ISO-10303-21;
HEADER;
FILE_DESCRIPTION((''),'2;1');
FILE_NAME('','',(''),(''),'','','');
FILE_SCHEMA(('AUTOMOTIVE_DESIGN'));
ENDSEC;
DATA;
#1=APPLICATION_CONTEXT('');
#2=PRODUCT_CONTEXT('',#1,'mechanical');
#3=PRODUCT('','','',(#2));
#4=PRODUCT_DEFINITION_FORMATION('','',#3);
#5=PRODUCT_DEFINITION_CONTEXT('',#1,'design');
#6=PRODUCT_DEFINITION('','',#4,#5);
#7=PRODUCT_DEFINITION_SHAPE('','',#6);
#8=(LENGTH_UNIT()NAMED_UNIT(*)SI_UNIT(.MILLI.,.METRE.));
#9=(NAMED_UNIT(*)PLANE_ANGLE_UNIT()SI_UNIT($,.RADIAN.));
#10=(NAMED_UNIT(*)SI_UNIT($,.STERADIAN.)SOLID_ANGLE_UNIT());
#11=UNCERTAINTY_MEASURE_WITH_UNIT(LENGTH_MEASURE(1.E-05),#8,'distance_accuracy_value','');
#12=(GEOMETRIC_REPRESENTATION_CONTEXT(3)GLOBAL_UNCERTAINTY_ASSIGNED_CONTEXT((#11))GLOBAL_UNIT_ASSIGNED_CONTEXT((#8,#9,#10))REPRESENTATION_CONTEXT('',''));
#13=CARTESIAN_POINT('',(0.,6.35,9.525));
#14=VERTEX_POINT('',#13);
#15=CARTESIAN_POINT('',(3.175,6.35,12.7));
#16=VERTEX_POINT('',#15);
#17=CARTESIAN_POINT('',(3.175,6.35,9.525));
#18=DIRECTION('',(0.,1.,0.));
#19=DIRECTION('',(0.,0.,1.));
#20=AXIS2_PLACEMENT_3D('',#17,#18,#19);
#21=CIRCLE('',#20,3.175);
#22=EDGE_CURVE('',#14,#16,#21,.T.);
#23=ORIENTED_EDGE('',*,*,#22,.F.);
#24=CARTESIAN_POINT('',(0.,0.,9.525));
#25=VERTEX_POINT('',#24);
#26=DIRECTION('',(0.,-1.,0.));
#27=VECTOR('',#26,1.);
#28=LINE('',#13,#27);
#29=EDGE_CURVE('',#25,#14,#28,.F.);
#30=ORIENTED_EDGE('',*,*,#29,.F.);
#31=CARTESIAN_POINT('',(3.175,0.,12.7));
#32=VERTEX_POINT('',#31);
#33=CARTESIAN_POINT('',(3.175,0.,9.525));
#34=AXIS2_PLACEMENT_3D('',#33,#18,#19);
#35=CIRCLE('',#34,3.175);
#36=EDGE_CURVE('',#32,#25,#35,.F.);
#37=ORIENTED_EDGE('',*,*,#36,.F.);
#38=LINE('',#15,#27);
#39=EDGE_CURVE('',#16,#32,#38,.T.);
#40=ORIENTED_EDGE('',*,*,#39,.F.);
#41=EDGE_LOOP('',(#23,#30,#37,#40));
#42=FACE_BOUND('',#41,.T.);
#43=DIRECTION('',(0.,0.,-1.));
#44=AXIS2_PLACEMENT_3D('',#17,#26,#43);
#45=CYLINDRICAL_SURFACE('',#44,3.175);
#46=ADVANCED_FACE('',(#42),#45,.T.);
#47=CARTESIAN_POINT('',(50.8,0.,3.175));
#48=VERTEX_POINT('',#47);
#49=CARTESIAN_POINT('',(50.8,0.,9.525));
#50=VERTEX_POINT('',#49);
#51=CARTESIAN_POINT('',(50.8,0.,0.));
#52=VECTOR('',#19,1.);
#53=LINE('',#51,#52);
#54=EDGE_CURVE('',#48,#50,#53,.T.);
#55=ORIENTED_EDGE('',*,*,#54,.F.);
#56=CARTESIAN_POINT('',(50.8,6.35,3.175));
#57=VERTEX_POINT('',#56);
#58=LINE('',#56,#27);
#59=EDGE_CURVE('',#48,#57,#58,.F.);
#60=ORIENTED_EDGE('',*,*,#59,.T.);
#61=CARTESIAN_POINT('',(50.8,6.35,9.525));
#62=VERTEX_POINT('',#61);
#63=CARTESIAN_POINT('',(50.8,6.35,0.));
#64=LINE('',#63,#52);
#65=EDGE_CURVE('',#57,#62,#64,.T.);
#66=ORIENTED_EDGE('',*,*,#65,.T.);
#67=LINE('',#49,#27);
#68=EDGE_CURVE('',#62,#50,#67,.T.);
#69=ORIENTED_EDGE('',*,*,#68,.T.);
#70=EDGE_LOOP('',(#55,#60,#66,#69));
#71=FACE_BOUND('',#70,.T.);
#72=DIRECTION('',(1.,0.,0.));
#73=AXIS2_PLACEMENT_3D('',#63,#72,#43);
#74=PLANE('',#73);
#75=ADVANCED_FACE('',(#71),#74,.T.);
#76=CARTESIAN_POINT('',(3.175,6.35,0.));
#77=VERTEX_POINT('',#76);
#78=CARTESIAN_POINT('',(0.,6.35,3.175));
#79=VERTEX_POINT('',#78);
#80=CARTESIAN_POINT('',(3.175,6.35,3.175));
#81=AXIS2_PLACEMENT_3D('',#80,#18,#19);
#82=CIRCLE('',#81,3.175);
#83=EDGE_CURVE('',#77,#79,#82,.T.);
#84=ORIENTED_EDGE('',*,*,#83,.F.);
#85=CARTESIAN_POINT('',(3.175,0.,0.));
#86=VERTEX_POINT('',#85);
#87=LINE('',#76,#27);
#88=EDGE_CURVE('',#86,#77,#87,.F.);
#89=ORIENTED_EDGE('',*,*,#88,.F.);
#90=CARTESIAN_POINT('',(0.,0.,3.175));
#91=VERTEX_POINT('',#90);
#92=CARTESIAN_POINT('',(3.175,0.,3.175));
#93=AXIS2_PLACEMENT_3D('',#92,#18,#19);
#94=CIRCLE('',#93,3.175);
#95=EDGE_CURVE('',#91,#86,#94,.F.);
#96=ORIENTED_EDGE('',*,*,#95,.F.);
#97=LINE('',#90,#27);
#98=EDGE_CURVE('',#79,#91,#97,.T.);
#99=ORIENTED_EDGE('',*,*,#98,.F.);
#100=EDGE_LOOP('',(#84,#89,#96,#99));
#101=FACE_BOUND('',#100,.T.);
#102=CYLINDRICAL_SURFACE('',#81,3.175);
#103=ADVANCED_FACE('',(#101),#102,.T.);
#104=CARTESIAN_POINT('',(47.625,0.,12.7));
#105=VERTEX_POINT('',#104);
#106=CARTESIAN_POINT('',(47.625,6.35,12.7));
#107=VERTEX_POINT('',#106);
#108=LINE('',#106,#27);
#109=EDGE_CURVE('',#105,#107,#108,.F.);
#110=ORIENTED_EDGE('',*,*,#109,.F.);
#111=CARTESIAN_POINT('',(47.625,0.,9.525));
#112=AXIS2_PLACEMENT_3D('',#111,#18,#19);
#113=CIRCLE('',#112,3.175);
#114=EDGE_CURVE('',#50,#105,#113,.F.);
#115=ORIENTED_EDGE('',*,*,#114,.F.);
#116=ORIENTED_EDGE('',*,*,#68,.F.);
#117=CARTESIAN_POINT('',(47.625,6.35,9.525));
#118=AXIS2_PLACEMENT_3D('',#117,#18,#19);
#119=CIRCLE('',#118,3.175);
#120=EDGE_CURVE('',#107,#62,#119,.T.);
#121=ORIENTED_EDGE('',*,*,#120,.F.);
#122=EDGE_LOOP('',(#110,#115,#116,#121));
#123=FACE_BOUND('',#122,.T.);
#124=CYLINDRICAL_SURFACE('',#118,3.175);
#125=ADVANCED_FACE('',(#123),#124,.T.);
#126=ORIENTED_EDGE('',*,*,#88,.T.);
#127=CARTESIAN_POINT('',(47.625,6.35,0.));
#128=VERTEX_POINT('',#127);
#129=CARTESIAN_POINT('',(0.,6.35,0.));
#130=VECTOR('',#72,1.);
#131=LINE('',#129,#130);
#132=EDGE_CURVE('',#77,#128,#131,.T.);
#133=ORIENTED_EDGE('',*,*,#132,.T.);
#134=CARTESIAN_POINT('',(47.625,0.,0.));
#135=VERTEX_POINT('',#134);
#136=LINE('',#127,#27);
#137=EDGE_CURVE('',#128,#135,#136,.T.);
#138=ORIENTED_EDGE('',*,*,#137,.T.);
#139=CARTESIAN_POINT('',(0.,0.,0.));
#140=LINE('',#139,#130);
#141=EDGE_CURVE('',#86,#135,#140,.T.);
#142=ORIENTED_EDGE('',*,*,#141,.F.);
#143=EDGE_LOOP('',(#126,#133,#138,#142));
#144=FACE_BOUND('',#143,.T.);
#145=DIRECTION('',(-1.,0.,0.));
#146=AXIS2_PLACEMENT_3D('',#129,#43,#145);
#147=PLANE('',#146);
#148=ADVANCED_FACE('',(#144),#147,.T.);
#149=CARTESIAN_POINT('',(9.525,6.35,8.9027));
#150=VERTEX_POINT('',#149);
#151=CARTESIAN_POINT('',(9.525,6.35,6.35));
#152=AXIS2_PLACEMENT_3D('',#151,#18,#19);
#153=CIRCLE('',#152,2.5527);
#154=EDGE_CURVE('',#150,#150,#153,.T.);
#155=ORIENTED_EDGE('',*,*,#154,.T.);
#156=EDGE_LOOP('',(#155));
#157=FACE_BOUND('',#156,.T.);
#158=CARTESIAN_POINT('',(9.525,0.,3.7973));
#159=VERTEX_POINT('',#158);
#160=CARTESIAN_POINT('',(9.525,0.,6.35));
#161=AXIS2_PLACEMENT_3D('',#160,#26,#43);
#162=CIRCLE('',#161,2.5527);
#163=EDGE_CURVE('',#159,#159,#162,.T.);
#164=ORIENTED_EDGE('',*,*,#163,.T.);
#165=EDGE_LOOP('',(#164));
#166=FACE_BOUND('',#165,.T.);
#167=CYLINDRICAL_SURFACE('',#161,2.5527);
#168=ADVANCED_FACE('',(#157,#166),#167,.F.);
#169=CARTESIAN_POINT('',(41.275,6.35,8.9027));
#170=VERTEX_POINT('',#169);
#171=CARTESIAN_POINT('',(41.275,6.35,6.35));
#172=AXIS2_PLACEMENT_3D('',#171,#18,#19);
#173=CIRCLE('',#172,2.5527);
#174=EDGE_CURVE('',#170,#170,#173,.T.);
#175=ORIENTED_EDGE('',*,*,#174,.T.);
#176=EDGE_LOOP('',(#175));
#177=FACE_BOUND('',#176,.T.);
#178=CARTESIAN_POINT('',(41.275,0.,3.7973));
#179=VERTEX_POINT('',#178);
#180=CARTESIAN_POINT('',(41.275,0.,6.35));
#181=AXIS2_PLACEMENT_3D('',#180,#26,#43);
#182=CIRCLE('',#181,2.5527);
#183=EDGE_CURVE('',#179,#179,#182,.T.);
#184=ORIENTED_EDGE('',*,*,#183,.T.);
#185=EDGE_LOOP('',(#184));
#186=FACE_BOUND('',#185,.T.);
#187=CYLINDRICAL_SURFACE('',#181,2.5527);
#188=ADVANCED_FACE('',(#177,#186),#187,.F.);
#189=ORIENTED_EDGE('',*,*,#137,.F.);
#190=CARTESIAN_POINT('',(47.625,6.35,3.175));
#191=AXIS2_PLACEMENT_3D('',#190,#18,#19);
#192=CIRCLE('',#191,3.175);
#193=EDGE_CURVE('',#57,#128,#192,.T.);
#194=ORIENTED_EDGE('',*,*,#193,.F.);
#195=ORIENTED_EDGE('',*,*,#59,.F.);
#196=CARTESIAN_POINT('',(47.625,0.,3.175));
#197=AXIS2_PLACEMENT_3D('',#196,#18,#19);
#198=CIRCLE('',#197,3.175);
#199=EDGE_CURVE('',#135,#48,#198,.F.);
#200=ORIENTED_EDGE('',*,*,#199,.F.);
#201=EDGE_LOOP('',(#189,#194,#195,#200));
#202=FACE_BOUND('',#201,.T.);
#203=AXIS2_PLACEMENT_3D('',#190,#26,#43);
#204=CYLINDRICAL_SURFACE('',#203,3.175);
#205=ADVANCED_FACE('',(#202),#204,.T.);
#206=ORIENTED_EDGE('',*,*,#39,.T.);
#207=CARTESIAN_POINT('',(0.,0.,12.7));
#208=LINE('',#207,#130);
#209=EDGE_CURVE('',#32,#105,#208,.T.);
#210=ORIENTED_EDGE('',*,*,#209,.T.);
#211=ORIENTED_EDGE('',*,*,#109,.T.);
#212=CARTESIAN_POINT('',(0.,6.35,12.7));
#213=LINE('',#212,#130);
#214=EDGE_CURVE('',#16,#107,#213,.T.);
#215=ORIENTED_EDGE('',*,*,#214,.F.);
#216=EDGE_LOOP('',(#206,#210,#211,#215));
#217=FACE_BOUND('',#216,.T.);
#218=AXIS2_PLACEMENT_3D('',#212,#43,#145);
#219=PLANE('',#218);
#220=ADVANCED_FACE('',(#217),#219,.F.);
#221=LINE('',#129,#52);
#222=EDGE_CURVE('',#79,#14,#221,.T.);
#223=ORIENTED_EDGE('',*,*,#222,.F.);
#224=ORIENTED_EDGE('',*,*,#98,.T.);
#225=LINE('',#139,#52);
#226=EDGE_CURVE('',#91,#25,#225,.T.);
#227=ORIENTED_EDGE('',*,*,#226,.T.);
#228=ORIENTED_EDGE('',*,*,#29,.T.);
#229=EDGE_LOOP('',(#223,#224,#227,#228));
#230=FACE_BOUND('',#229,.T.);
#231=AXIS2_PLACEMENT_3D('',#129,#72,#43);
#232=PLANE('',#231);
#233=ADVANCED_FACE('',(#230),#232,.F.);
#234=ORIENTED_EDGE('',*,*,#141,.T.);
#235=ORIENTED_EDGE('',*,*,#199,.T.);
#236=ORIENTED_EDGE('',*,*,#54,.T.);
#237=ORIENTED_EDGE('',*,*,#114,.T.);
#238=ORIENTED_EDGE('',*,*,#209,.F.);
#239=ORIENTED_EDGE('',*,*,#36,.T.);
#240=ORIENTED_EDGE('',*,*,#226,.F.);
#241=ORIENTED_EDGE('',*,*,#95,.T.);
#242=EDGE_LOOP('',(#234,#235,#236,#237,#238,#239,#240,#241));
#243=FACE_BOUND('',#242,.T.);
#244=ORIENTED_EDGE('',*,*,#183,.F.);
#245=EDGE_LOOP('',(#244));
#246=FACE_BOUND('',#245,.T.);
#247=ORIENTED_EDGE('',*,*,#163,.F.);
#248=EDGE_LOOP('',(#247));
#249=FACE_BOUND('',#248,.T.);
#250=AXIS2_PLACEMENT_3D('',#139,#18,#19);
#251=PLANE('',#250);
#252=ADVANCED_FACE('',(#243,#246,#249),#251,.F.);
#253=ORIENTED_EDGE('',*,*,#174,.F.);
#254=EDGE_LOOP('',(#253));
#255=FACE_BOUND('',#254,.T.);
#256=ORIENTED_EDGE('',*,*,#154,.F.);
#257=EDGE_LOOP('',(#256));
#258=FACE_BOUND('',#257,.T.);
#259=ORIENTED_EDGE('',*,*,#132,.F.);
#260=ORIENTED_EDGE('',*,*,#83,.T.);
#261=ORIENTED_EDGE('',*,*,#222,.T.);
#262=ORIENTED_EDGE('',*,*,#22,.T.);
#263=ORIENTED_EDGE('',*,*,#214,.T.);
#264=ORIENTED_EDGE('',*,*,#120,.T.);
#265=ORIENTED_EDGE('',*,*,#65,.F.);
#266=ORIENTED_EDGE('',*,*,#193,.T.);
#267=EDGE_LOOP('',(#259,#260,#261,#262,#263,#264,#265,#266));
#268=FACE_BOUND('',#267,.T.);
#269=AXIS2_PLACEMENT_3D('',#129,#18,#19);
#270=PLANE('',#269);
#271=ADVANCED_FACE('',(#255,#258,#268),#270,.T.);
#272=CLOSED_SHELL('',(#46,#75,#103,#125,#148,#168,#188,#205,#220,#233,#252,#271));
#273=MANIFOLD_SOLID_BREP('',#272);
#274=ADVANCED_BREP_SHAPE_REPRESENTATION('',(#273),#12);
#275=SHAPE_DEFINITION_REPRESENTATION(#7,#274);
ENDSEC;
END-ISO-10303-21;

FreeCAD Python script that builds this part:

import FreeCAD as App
import Part
import Sketcher

V = App.Vector
Q = App.Units.Quantity


def edges_at(feature, points):
    """Names of the edges that pass closest to the given points."""
    edges = feature.Shape.Edges
    near = lambda p: min(range(len(edges)), key=lambda i: edges[i].distToShape(Part.Vertex(*p))[0])
    return sorted({f"Edge{near(p) + 1}" for p in points})

doc = App.newDocument("Part")
body = doc.addObject("PartDesign::Body", "Body")

sketch1 = body.newObject("Sketcher::SketchObject", "Sketch")
sketch1.AttachmentSupport = (doc.getObject("XZ_Plane"), [""])
sketch1.MapMode = "FlatFace"
sketch1.addGeometry(Part.LineSegment(V(0, 0, 0), V(0, 13, 0)), False)
sketch1.addGeometry(Part.LineSegment(V(0, 13, 0), V(51, 13, 0)), False)
sketch1.addGeometry(Part.LineSegment(V(51, 13, 0), V(51, 0, 0)), False)
sketch1.addGeometry(Part.LineSegment(V(51, 0, 0), V(0, 0, 0)), False)
sketch1.addConstraint(Sketcher.Constraint("Coincident", 0, 2, 1, 1))
sketch1.addConstraint(Sketcher.Constraint("Coincident", 1, 2, 2, 1))
sketch1.addConstraint(Sketcher.Constraint("Coincident", 2, 2, 3, 1))
sketch1.addConstraint(Sketcher.Constraint("Coincident", 3, 2, 0, 1))
sketch1.addConstraint(Sketcher.Constraint("Vertical", 0))
sketch1.addConstraint(Sketcher.Constraint("Horizontal", 1))
sketch1.addConstraint(Sketcher.Constraint("Vertical", 2))
sketch1.addConstraint(Sketcher.Constraint("Horizontal", 3))
sketch1.addConstraint(Sketcher.Constraint("Coincident", 3, 2, -1, 1))
sketch1.addConstraint(Sketcher.Constraint("DistanceX", 1, 1, 1, 2, Q("2 in")))
sketch1.addConstraint(Sketcher.Constraint("DistanceY", 0, 1, 0, 2, Q("0.5 in")))
pad1 = body.newObject("PartDesign::Pad", "Pad")
pad1.Profile = sketch1
pad1.Length = Q("0.25 in")
pad1.Reversed = True

sketch2 = body.newObject("Sketcher::SketchObject", "Sketch001")
sketch2.AttachmentSupport = (doc.getObject("XZ_Plane"), [""])
sketch2.MapMode = "FlatFace"
sketch2.addGeometry(Part.Circle(V(9.5, 6.3, 0), V(0, 0, 1), 2.6), False)
sketch2.addGeometry(Part.Circle(V(41.3, 6.3, 0), V(0, 0, 1), 2.6), False)
sketch2.addConstraint(Sketcher.Constraint("Equal", 0, 1))
sketch2.addConstraint(Sketcher.Constraint("Horizontal", 0, 3, 1, 3))
sketch2.addConstraint(Sketcher.Constraint("Diameter", 0, Q("0.201 in")))
sketch2.addConstraint(Sketcher.Constraint("DistanceY", -1, 1, 0, 3, Q("0.25 in")))
sketch2.addConstraint(Sketcher.Constraint("DistanceX", 0, 3, 1, 3, Q("1.25 in")))
sketch2.addConstraint(Sketcher.Constraint("DistanceX", -1, 1, 0, 3, Q("0.375 in")))
doc.recompute()
hole = body.newObject("PartDesign::Hole", "Hole")
hole.Profile = sketch2
hole.ThreadType = "None"
hole.Diameter = Q("0.201 in")
hole.DepthType = "Dimension"
hole.Depth = Q("0.25 in")
hole.DrillPoint = "Flat"
doc.recompute()

fillet = body.newObject("PartDesign::Fillet", "Fillet")
fillet.Base = (hole, edges_at(hole, [
    (0, 3.175, 0),
    (50.8, 3.175, 0),
    (50.8, 3.175, 12.7),
    (0, 3.175, 12.7),
]))
fillet.Radius = Q("0.125 in")

doc.recompute()
